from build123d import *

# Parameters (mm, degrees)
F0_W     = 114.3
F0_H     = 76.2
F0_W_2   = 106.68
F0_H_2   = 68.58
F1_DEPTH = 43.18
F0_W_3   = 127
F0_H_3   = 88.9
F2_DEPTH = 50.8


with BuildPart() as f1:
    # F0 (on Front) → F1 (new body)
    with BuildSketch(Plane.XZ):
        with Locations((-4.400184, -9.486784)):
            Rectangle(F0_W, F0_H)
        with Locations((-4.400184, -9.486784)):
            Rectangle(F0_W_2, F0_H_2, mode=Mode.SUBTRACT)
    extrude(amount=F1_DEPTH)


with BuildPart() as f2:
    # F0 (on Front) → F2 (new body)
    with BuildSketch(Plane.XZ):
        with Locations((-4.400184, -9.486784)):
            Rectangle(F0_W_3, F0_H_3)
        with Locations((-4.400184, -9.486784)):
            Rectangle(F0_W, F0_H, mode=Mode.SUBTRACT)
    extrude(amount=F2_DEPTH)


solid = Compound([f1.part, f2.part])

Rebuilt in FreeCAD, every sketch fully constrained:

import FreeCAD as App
import Part
import Sketcher
from FreeCAD import Vector
Q = App.Units.Quantity


def add_polygon(sketch, points):
    """Adds a closed chain of lines whose ends are joined by coincident constraints."""
    first, n = sketch.GeometryCount, len(points)
    for a, b in zip(points, points[1:] + points[:1]):
        sketch.addGeometry(Part.LineSegment(App.Vector(*a, 0), App.Vector(*b, 0)), False)
    for i in range(n):
        sketch.addConstraint(Sketcher.Constraint("Coincident", first + i, 2, first + (i + 1) % n, 1))

doc = App.newDocument("Part")
params = doc.addObject("Spreadsheet::Sheet", "Params")
for row, (alias, value) in enumerate([
    ("sketch1_height", "3 in"),
    ("sketch1_width", "4.5 in"),
    ("sketch1_width2", "4.2 in"),
    ("sketch1_height2", "2.7 in"),
    ("pad1_length", "1.7 in"),
    ("sketch2_width", "5 in"),
    ("sketch2_height", "3 in"),
    ("sketch2_width2", "4.5 in"),
    ("sketch2_height2", "3.5 in"),
    ("pad2_length", "2 in"),
], start=1):
    params.set(f"A{row}", alias)
    params.set(f"B{row}", "=" + value)
    params.setAlias(f"B{row}", alias)

body = doc.addObject("PartDesign::Body", "Body")

# Sketch on XZ plane
sketch1 = doc.addObject("Sketcher::SketchObject", "Sketch")
body.addObject(sketch1)
sketch1.AttachmentSupport = (doc.XZ_Plane, [""])
sketch1.MapMode = "FlatFace"
add_polygon(sketch1, [(-62, 29), (-62, -48), (53, -48), (53, 29)])  # lines 0-3
add_polygon(sketch1, [(49, -44), (-58, -44), (-58, 25), (49, 25)])  # lines 4-7
sketch1.addConstraint([
    Sketcher.Constraint("Vertical", 0),
    Sketcher.Constraint("Horizontal", 1),
    Sketcher.Constraint("Vertical", 2),
    Sketcher.Constraint("Horizontal", 3),
    Sketcher.Constraint("Horizontal", 4),
    Sketcher.Constraint("Vertical", 5),
    Sketcher.Constraint("Horizontal", 6),
    Sketcher.Constraint("Vertical", 7),
    Sketcher.Constraint("DistanceY", 0, 2, 0, 1, Q("3 in")),
    Sketcher.Constraint("DistanceX", 1, 1, 1, 2, Q("4.5 in")),
    Sketcher.Constraint("DistanceX", 4, 2, 4, 1, Q("4.2 in")),
    Sketcher.Constraint("DistanceY", 5, 1, 5, 2, Q("2.7 in")),
    Sketcher.Constraint("DistanceX", 0, 2, 4, 2, Q("0.15 in")),
    Sketcher.Constraint("DistanceY", 0, 2, 4, 2, Q("0.15 in")),
    Sketcher.Constraint("DistanceX", 0, 2, -1, 1, Q("61.550184 mm")),
    Sketcher.Constraint("DistanceY", 0, 2, -1, 1, Q("47.586784 mm")),
])
sketch1.setExpression("Constraints[16]", "Params.sketch1_height")
sketch1.setExpression("Constraints[17]", "Params.sketch1_width")
sketch1.setExpression("Constraints[18]", "Params.sketch1_width2")
sketch1.setExpression("Constraints[19]", "Params.sketch1_height2")
pad1 = doc.addObject("PartDesign::Pad", "Pad")
body.addObject(pad1)
pad1.Profile = sketch1
pad1.setExpression("Length", "Params.pad1_length")
body2 = doc.addObject("PartDesign::Body", "Body001")

# Sketch on XZ plane
sketch2 = doc.addObject("Sketcher::SketchObject", "Sketch001")
body2.addObject(sketch2)
sketch2.AttachmentSupport = (doc.getObject("XZ_Plane001"), [""])
sketch2.MapMode = "FlatFace"
add_polygon(sketch2, [(-68, 35), (-68, -54), (59, -54), (59, 35)])  # lines 0-3
add_polygon(sketch2, [(53, -48), (-62, -48), (-62, 29), (53, 29)])  # lines 4-7
sketch2.addConstraint([
    Sketcher.Constraint("Vertical", 0),
    Sketcher.Constraint("Horizontal", 1),
    Sketcher.Constraint("Vertical", 2),
    Sketcher.Constraint("Horizontal", 3),
    Sketcher.Constraint("Horizontal", 4),
    Sketcher.Constraint("Vertical", 5),
    Sketcher.Constraint("Horizontal", 6),
    Sketcher.Constraint("Vertical", 7),
    Sketcher.Constraint("DistanceX", 1, 1, 1, 2, Q("5 in")),
    Sketcher.Constraint("DistanceY", 5, 1, 5, 2, Q("3 in")),
    Sketcher.Constraint("DistanceX", 4, 2, 4, 1, Q("4.5 in")),
    Sketcher.Constraint("DistanceY", 0, 2, 0, 1, Q("3.5 in")),
    Sketcher.Constraint("DistanceX", 0, 2, 4, 2, Q("0.25 in")),
    Sketcher.Constraint("DistanceY", 0, 2, 4, 2, Q("0.25 in")),
    Sketcher.Constraint("DistanceX", 0, 2, -1, 1, Q("67.900184 mm")),
    Sketcher.Constraint("DistanceY", 0, 2, -1, 1, Q("53.936784 mm")),
])
sketch2.setExpression("Constraints[16]", "Params.sketch2_width")
sketch2.setExpression("Constraints[17]", "Params.sketch2_height")
sketch2.setExpression("Constraints[18]", "Params.sketch2_width2")
sketch2.setExpression("Constraints[19]", "Params.sketch2_height2")
pad2 = doc.addObject("PartDesign::Pad", "Pad001")
body2.addObject(pad2)
pad2.Profile = sketch2
pad2.setExpression("Length", "Params.pad2_length")

doc.recompute()
